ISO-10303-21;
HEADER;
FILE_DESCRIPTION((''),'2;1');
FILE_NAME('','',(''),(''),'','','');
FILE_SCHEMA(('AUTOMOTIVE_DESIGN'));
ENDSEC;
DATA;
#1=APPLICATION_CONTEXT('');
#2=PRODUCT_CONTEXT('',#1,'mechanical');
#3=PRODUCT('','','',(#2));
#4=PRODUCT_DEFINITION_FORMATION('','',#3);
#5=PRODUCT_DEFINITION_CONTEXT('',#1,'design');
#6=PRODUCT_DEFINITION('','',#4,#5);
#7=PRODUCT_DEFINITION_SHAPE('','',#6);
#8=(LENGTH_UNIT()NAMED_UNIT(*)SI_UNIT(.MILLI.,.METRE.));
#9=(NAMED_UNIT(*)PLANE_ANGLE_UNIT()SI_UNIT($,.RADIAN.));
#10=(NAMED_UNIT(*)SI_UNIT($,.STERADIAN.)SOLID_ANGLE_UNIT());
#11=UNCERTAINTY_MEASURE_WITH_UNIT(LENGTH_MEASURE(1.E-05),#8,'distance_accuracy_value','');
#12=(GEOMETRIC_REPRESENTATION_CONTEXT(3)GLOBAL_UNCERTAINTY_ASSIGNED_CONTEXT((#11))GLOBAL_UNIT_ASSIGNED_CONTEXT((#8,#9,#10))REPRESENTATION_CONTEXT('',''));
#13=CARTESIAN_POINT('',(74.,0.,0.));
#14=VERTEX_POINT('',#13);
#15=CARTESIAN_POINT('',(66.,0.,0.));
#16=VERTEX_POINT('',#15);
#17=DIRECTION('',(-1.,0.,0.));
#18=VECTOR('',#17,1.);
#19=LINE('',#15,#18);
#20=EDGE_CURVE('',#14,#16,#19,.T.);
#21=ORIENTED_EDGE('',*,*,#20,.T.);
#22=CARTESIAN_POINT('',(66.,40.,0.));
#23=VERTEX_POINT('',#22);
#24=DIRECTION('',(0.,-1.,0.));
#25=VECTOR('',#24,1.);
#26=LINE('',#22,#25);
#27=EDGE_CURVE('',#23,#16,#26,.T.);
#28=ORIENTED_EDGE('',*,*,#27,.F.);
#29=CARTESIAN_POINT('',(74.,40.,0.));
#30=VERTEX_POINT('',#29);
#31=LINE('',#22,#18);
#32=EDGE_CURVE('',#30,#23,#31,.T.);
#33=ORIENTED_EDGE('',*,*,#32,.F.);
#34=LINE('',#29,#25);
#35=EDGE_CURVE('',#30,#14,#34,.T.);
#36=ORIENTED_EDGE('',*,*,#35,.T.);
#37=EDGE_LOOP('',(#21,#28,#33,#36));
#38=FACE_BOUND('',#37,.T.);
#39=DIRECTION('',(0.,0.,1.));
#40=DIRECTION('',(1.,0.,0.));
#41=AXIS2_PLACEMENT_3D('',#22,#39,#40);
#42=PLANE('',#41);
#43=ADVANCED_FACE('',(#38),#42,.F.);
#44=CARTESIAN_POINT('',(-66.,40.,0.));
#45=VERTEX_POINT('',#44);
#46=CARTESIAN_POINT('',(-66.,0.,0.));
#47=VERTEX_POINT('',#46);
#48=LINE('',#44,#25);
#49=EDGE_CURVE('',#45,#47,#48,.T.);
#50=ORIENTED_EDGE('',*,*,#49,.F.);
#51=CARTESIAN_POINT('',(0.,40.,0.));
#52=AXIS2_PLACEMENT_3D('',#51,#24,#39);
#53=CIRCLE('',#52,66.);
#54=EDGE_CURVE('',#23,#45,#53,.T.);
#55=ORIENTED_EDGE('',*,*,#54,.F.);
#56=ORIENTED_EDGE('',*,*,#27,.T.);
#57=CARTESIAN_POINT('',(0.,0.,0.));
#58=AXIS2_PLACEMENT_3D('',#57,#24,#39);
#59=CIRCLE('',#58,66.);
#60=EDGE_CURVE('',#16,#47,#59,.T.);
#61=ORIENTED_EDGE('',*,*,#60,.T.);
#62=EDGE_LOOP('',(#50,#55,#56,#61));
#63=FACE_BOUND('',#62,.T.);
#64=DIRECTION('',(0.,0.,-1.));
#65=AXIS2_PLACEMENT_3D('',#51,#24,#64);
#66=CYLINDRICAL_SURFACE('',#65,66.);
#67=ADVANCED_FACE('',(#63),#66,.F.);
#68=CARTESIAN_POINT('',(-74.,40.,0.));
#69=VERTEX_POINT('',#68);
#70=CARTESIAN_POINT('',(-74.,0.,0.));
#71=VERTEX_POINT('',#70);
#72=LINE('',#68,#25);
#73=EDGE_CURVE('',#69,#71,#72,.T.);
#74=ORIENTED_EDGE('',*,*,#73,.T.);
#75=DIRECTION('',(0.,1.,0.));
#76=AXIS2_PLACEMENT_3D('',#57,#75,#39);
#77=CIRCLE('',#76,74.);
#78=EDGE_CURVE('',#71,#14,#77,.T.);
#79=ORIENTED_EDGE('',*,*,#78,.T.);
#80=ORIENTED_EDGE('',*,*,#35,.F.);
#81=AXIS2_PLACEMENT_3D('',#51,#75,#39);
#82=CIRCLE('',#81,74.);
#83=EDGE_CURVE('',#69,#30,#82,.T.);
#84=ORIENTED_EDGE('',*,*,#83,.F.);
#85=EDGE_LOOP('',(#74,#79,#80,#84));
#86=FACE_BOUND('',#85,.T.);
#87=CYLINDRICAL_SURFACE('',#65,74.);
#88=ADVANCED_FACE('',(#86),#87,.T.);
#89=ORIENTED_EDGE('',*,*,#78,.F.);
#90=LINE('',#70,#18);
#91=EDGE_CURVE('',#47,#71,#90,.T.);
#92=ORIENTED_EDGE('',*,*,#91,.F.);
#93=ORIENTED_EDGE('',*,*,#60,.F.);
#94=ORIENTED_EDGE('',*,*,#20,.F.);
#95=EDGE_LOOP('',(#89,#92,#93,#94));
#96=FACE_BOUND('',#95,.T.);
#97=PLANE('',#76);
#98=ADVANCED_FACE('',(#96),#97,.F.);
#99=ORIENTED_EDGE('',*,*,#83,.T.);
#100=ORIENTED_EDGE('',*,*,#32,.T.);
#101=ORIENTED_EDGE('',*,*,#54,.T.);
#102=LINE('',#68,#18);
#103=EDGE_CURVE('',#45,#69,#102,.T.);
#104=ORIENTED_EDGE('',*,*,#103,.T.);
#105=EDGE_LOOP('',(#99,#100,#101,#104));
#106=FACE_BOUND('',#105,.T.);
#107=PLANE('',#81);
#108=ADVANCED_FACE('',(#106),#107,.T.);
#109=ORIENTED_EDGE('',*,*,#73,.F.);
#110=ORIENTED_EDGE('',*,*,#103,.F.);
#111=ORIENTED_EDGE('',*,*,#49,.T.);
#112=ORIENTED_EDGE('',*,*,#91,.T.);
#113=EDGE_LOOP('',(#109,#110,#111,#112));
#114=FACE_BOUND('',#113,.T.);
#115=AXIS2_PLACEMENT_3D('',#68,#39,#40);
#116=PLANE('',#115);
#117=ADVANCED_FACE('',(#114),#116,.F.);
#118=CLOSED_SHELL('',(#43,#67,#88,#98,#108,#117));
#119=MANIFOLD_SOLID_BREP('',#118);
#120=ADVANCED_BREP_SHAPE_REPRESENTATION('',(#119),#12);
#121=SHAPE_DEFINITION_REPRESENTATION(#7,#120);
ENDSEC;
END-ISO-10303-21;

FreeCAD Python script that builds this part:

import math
import FreeCAD as App
import Part
import Sketcher
from FreeCAD import Vector
Q = App.Units.Quantity

doc = App.newDocument("Part")
body = doc.addObject("PartDesign::Body", "Body")

sketch1 = doc.addObject("Sketcher::SketchObject", "Sketch")
body.addObject(sketch1)
sketch1.AttachmentSupport = (doc.XZ_Plane, [""])
sketch1.MapMode = "FlatFace"
sketch1.addGeometry([
    Part.LineSegment(Vector(-66, 0, 0), Vector(-74, 0, 0)),
    Part.ArcOfCircle(Part.Circle(Vector(0, 0, 0), Vector(0, 0, 1), 74), math.radians(0), math.radians(180)),
    Part.LineSegment(Vector(74, 0, 0), Vector(66, 0, 0)),
    Part.ArcOfCircle(Part.Circle(Vector(0, 0, 0), Vector(0, 0, 1), 66), math.radians(0), math.radians(180)),
], False)
sketch1.addConstraint([
    Sketcher.Constraint("Coincident", 0, 2, 1, 2),
    Sketcher.Constraint("Coincident", 1, 1, 2, 1),
    Sketcher.Constraint("Coincident", 2, 2, 3, 1),
    Sketcher.Constraint("Coincident", 3, 2, 0, 1),
    Sketcher.Constraint("Horizontal", 0),
    Sketcher.Constraint("Horizontal", 2),
    Sketcher.Constraint("Coincident", 1, 3, -1, 1),
    Sketcher.Constraint("Coincident", 3, 3, -1, 1),
    Sketcher.Constraint("PointOnObject", 0, 2, -1),
    Sketcher.Constraint("PointOnObject", 1, 1, -1),
    Sketcher.Constraint("Radius", 1, Q("74 mm")),
    Sketcher.Constraint("Radius", 3, Q("66 mm")),
])
pad1 = doc.addObject("PartDesign::Pad", "Pad")
body.addObject(pad1)
pad1.Profile = sketch1
pad1.Length = 40
pad1.Reversed = True

doc.recompute()
